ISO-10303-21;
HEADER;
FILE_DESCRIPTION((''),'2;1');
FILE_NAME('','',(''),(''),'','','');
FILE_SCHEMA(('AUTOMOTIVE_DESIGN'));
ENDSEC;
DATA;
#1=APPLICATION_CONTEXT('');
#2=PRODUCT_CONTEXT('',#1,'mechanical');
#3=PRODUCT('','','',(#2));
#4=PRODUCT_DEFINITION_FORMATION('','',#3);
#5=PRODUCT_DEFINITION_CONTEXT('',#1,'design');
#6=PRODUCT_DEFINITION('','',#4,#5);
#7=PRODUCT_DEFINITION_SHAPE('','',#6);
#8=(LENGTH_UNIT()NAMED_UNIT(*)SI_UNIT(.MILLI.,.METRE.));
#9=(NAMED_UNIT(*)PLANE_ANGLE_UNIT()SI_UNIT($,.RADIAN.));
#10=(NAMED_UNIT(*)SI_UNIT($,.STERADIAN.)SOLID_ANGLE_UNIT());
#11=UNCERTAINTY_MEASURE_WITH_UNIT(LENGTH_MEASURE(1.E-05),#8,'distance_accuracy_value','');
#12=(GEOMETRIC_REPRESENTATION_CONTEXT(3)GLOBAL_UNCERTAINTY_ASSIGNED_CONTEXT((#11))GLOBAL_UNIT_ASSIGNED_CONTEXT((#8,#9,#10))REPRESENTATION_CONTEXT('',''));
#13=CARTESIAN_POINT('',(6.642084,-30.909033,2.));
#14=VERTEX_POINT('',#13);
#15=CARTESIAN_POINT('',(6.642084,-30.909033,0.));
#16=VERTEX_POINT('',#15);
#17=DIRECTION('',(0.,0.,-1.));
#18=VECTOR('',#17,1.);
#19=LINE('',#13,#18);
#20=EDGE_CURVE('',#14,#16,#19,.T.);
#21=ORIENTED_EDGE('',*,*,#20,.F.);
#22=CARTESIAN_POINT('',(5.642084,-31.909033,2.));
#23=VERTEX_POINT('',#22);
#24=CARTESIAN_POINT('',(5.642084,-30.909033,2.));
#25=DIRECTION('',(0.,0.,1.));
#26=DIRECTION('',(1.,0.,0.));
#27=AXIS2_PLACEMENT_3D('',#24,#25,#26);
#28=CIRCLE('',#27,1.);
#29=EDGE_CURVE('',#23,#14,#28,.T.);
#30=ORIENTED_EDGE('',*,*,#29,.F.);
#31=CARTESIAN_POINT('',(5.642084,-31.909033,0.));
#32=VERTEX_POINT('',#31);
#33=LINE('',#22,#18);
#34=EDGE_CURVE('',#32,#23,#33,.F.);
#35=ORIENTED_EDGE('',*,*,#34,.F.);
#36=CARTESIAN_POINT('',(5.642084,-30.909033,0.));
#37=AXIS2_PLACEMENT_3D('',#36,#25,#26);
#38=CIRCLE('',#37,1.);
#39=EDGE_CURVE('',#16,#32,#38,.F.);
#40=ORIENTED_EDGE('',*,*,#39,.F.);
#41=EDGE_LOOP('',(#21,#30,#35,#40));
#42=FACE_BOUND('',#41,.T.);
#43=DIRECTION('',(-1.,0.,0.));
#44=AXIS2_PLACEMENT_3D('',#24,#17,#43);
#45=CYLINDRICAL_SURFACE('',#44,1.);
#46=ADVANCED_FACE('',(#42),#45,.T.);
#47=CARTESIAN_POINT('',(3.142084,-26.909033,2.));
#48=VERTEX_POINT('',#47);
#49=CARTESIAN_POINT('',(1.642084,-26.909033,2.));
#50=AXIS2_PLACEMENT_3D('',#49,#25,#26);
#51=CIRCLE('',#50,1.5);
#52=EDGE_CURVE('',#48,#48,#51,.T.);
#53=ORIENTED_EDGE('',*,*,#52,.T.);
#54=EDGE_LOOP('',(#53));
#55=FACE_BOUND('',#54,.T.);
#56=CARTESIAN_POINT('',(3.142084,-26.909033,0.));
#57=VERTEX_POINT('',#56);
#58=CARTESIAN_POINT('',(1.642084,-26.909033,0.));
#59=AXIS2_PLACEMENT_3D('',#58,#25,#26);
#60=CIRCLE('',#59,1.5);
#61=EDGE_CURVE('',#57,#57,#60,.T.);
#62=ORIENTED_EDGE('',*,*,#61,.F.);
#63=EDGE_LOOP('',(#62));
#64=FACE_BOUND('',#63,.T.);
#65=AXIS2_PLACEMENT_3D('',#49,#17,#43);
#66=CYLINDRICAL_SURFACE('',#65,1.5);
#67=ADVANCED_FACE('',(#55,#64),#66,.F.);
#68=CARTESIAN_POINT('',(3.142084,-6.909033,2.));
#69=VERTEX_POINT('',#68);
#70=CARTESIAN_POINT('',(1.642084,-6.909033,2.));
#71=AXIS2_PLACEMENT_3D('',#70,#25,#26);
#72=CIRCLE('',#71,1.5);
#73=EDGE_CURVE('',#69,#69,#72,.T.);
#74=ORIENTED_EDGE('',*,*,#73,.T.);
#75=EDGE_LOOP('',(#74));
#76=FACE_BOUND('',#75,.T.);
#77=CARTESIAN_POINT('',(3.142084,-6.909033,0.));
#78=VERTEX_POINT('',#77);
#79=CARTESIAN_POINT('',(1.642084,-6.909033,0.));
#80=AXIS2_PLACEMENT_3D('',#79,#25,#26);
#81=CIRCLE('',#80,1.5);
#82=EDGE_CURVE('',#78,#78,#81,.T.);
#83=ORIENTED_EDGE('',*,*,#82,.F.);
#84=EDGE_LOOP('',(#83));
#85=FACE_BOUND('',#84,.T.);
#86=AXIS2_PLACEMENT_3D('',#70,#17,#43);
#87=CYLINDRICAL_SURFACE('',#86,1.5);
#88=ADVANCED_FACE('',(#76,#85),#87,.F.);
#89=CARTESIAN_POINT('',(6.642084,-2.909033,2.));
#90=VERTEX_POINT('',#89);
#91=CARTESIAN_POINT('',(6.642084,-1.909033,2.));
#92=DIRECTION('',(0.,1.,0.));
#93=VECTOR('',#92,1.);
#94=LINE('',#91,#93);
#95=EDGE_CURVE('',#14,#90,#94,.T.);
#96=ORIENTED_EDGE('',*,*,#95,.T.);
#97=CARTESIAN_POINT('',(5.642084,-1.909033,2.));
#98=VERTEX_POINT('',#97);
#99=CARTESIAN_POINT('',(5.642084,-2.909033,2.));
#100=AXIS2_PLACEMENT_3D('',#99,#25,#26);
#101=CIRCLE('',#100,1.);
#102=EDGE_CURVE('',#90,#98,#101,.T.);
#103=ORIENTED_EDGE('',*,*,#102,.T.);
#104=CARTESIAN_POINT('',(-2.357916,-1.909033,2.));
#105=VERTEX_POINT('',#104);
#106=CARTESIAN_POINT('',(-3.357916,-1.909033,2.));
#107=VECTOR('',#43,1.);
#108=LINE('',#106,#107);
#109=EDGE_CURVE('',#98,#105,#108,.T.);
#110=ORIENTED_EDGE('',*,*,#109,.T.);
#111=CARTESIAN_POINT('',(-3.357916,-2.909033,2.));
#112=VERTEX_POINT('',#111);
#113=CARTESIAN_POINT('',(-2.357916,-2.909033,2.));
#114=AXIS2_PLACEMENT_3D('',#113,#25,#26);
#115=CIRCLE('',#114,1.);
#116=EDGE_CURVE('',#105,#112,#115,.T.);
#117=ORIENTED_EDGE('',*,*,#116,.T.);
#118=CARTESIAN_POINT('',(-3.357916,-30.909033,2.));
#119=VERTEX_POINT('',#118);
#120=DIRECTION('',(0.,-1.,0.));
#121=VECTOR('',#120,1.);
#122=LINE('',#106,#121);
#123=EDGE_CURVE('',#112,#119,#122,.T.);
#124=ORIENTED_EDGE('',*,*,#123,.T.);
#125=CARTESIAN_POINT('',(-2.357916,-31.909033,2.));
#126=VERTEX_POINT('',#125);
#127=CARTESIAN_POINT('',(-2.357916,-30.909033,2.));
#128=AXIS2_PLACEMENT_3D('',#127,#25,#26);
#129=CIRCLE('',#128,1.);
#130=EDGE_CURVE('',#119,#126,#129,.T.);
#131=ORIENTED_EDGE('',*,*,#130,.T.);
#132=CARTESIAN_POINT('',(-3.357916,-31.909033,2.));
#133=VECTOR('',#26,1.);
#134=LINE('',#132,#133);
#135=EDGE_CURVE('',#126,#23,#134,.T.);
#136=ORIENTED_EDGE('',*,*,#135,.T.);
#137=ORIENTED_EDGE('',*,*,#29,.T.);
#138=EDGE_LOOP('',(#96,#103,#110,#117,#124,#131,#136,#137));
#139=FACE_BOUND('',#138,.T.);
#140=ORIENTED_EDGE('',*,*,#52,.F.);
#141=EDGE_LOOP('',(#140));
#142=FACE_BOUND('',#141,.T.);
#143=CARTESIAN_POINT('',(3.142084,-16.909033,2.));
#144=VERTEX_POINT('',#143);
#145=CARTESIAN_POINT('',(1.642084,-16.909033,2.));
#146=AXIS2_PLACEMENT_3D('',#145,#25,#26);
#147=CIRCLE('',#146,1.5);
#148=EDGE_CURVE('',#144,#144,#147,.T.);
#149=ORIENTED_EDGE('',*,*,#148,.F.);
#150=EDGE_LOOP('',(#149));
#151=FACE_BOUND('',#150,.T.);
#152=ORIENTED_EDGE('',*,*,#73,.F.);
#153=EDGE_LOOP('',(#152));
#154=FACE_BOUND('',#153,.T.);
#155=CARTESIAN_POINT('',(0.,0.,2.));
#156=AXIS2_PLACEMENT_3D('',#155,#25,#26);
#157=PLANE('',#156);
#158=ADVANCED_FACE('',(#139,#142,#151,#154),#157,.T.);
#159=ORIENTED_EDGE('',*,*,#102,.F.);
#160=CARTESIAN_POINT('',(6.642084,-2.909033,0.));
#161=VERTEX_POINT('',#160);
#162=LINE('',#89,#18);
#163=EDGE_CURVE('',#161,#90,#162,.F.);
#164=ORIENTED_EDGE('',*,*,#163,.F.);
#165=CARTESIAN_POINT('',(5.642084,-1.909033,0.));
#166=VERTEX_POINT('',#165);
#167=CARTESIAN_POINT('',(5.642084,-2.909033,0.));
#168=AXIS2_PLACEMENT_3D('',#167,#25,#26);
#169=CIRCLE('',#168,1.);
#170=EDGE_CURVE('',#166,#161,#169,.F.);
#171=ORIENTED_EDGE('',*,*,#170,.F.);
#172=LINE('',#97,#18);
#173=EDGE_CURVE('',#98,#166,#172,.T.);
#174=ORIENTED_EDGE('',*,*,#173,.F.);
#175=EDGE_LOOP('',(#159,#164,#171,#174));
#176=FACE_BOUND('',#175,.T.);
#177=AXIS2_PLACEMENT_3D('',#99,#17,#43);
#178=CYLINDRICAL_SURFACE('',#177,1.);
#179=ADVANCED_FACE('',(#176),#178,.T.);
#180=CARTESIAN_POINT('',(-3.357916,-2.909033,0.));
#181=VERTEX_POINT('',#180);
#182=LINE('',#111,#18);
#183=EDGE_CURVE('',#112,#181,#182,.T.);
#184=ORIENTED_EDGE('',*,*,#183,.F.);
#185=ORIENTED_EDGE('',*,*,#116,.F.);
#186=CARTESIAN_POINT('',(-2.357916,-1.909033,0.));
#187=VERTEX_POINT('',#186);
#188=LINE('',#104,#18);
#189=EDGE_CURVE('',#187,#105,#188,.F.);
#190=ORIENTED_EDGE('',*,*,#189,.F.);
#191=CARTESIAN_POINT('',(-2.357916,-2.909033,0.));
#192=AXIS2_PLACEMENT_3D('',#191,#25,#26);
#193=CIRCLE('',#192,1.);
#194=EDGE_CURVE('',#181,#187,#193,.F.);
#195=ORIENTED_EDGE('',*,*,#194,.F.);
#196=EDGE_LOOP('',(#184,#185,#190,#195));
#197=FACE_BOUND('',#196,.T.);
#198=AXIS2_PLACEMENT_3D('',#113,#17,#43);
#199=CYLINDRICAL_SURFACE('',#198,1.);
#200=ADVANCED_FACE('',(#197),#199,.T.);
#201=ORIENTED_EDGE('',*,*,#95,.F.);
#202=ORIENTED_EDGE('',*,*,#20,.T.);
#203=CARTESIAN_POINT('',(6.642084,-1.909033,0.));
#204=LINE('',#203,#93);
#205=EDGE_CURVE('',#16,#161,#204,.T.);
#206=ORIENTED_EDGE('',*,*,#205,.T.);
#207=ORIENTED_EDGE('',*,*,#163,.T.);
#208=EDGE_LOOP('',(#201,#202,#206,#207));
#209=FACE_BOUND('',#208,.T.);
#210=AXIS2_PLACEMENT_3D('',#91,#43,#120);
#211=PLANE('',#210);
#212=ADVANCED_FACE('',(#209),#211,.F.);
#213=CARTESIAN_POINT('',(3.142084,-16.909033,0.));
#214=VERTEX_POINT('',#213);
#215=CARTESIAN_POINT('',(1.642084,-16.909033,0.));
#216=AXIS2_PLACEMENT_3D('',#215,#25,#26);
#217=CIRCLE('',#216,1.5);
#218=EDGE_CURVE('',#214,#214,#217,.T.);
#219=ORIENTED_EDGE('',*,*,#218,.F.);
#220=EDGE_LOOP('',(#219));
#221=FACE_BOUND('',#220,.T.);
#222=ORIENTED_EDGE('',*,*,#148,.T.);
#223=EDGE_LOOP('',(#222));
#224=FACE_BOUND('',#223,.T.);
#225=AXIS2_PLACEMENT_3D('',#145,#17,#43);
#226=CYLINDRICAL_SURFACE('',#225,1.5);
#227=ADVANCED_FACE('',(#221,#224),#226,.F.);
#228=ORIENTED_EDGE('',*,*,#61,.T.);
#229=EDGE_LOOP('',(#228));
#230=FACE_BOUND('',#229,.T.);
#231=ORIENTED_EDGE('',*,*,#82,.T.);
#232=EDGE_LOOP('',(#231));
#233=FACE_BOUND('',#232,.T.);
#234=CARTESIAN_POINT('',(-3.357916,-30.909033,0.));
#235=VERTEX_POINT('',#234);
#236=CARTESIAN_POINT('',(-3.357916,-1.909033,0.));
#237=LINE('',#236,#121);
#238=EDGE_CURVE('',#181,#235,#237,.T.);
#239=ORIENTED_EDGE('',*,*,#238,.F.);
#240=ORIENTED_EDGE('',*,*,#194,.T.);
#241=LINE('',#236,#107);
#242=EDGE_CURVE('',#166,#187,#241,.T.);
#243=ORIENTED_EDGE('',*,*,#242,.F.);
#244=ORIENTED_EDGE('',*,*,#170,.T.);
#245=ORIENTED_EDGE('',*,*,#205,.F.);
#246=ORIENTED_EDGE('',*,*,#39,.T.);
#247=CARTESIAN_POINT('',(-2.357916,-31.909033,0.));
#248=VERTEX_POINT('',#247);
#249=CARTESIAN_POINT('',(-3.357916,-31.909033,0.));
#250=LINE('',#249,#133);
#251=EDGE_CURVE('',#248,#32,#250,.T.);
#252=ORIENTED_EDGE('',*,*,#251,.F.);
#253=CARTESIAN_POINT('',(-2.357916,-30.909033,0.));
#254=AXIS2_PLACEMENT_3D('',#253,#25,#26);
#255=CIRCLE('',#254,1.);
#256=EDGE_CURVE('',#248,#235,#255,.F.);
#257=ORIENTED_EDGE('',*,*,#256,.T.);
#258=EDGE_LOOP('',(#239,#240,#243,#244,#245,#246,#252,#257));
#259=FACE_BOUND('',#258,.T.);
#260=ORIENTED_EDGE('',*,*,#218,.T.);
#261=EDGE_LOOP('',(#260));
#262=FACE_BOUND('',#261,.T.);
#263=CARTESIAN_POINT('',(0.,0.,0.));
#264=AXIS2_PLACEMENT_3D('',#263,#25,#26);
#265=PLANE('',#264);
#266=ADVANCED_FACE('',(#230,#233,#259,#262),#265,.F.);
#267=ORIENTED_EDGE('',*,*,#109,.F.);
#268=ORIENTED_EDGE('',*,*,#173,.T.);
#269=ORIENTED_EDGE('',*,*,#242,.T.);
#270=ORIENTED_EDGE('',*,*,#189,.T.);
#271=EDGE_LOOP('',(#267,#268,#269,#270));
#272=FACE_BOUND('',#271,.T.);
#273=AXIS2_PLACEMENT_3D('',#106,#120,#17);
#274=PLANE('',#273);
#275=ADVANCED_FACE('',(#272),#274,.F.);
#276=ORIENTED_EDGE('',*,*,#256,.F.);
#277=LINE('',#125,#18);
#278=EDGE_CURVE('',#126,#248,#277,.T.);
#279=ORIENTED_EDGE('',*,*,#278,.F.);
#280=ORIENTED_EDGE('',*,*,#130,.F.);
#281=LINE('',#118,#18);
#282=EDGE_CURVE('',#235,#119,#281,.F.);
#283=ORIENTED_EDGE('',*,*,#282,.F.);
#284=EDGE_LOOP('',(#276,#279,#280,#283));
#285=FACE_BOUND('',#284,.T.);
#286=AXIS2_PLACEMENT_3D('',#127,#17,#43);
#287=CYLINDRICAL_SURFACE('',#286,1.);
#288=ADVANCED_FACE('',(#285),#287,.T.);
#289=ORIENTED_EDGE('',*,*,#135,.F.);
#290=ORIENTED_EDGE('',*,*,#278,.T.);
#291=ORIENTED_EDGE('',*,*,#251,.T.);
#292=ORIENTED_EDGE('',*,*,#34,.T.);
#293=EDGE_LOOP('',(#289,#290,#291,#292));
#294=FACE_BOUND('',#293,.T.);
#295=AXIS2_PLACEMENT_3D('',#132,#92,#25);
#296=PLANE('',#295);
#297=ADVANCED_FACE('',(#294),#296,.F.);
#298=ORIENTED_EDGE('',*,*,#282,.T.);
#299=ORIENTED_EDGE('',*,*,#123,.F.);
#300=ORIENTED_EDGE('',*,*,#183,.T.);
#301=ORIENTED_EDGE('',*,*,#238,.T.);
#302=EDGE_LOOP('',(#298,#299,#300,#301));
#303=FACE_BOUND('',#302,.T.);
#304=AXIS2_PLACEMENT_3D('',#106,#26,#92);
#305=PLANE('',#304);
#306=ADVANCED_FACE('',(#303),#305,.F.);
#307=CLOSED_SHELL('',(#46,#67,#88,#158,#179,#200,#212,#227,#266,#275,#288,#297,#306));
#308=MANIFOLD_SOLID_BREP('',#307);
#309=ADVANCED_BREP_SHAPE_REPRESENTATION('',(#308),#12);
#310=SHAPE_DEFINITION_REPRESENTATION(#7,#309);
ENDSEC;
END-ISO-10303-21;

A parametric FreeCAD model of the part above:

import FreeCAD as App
import Part
import Sketcher


def edges_at(feature, points):
    """Names of the edges that pass closest to the given points."""
    edges = feature.Shape.Edges
    near = lambda p: min(range(len(edges)), key=lambda i: edges[i].distToShape(Part.Vertex(*p))[0])
    return sorted({f"Edge{near(p) + 1}" for p in points})

doc = App.newDocument("Part")
body = doc.addObject("PartDesign::Body", "Body")

# Sketch on XY plane
sketch1 = doc.addObject("Sketcher::SketchObject", "Sketch")
body.addObject(sketch1)
sketch1.AttachmentSupport = (doc.XY_Plane, [""])
sketch1.MapMode = "FlatFace"
sketch1.addGeometry([
    Part.LineSegment(App.Vector(-3.4, -1.9, 0), App.Vector(-3.4, -31.9, 0)),  # 0
    Part.LineSegment(App.Vector(-3.4, -31.9, 0), App.Vector(6.6, -31.9, 0)),  # 1
    Part.LineSegment(App.Vector(6.6, -31.9, 0), App.Vector(6.6, -1.9, 0)),  # 2
    Part.LineSegment(App.Vector(6.6, -1.9, 0), App.Vector(-3.4, -1.9, 0)),  # 3
    Part.Circle(App.Vector(1.6, -26.9, 0), App.Vector(0, 0, 1), 1.5),  # 4
    Part.Circle(App.Vector(1.6, -16.9, 0), App.Vector(0, 0, 1), 1.5),  # 5
    Part.Circle(App.Vector(1.6, -6.9, 0), App.Vector(0, 0, 1), 1.5),  # 6
], False)
sketch1.addConstraint([
    Sketcher.Constraint("Coincident", 0, 2, 1, 1),
    Sketcher.Constraint("Coincident", 1, 2, 2, 1),
    Sketcher.Constraint("Coincident", 2, 2, 3, 1),
    Sketcher.Constraint("Coincident", 3, 2, 0, 1),
    Sketcher.Constraint("Vertical", 0),
    Sketcher.Constraint("Horizontal", 1),
    Sketcher.Constraint("Vertical", 2),
    Sketcher.Constraint("Horizontal", 3),
    Sketcher.Constraint("Equal", 4, 5),
    Sketcher.Constraint("Equal", 5, 6),
    Sketcher.Constraint("Vertical", 4, 3, 5, 3),
    Sketcher.Constraint("Vertical", 5, 3, 6, 3),
    Sketcher.Constraint("Diameter", 4, 3.0),
    Sketcher.Constraint("DistanceX", 1, 1, 1, 2, 10.0),
    Sketcher.Constraint("DistanceY", 0, 2, 0, 1, 30.0),
    Sketcher.Constraint("DistanceY", 4, 3, 5, 3, 10.0),
    Sketcher.Constraint("DistanceY", 5, 3, 6, 3, 10.0),
    Sketcher.Constraint("DistanceX", 0, 2, 4, 3, 5.0),
    Sketcher.Constraint("DistanceY", 0, 2, 4, 3, 5.0),
    Sketcher.Constraint("DistanceX", -1, 1, 4, 3, 1.642084),
    Sketcher.Constraint("DistanceY", 4, 3, -1, 1, 26.909033),
])
pad1 = doc.addObject("PartDesign::Pad", "Pad")
body.addObject(pad1)
pad1.Profile = sketch1
pad1.Length = 2
doc.recompute()

fillet = doc.addObject("PartDesign::Fillet", "Fillet")
body.addObject(fillet)
fillet.Base = (pad1, edges_at(pad1, [
    (-3.358, -1.909, 1),
    (6.642, -1.909, 1),
    (6.642, -31.909, 1),
    (-3.358, -31.909, 1),
]))
fillet.Radius = 1

doc.recompute()
